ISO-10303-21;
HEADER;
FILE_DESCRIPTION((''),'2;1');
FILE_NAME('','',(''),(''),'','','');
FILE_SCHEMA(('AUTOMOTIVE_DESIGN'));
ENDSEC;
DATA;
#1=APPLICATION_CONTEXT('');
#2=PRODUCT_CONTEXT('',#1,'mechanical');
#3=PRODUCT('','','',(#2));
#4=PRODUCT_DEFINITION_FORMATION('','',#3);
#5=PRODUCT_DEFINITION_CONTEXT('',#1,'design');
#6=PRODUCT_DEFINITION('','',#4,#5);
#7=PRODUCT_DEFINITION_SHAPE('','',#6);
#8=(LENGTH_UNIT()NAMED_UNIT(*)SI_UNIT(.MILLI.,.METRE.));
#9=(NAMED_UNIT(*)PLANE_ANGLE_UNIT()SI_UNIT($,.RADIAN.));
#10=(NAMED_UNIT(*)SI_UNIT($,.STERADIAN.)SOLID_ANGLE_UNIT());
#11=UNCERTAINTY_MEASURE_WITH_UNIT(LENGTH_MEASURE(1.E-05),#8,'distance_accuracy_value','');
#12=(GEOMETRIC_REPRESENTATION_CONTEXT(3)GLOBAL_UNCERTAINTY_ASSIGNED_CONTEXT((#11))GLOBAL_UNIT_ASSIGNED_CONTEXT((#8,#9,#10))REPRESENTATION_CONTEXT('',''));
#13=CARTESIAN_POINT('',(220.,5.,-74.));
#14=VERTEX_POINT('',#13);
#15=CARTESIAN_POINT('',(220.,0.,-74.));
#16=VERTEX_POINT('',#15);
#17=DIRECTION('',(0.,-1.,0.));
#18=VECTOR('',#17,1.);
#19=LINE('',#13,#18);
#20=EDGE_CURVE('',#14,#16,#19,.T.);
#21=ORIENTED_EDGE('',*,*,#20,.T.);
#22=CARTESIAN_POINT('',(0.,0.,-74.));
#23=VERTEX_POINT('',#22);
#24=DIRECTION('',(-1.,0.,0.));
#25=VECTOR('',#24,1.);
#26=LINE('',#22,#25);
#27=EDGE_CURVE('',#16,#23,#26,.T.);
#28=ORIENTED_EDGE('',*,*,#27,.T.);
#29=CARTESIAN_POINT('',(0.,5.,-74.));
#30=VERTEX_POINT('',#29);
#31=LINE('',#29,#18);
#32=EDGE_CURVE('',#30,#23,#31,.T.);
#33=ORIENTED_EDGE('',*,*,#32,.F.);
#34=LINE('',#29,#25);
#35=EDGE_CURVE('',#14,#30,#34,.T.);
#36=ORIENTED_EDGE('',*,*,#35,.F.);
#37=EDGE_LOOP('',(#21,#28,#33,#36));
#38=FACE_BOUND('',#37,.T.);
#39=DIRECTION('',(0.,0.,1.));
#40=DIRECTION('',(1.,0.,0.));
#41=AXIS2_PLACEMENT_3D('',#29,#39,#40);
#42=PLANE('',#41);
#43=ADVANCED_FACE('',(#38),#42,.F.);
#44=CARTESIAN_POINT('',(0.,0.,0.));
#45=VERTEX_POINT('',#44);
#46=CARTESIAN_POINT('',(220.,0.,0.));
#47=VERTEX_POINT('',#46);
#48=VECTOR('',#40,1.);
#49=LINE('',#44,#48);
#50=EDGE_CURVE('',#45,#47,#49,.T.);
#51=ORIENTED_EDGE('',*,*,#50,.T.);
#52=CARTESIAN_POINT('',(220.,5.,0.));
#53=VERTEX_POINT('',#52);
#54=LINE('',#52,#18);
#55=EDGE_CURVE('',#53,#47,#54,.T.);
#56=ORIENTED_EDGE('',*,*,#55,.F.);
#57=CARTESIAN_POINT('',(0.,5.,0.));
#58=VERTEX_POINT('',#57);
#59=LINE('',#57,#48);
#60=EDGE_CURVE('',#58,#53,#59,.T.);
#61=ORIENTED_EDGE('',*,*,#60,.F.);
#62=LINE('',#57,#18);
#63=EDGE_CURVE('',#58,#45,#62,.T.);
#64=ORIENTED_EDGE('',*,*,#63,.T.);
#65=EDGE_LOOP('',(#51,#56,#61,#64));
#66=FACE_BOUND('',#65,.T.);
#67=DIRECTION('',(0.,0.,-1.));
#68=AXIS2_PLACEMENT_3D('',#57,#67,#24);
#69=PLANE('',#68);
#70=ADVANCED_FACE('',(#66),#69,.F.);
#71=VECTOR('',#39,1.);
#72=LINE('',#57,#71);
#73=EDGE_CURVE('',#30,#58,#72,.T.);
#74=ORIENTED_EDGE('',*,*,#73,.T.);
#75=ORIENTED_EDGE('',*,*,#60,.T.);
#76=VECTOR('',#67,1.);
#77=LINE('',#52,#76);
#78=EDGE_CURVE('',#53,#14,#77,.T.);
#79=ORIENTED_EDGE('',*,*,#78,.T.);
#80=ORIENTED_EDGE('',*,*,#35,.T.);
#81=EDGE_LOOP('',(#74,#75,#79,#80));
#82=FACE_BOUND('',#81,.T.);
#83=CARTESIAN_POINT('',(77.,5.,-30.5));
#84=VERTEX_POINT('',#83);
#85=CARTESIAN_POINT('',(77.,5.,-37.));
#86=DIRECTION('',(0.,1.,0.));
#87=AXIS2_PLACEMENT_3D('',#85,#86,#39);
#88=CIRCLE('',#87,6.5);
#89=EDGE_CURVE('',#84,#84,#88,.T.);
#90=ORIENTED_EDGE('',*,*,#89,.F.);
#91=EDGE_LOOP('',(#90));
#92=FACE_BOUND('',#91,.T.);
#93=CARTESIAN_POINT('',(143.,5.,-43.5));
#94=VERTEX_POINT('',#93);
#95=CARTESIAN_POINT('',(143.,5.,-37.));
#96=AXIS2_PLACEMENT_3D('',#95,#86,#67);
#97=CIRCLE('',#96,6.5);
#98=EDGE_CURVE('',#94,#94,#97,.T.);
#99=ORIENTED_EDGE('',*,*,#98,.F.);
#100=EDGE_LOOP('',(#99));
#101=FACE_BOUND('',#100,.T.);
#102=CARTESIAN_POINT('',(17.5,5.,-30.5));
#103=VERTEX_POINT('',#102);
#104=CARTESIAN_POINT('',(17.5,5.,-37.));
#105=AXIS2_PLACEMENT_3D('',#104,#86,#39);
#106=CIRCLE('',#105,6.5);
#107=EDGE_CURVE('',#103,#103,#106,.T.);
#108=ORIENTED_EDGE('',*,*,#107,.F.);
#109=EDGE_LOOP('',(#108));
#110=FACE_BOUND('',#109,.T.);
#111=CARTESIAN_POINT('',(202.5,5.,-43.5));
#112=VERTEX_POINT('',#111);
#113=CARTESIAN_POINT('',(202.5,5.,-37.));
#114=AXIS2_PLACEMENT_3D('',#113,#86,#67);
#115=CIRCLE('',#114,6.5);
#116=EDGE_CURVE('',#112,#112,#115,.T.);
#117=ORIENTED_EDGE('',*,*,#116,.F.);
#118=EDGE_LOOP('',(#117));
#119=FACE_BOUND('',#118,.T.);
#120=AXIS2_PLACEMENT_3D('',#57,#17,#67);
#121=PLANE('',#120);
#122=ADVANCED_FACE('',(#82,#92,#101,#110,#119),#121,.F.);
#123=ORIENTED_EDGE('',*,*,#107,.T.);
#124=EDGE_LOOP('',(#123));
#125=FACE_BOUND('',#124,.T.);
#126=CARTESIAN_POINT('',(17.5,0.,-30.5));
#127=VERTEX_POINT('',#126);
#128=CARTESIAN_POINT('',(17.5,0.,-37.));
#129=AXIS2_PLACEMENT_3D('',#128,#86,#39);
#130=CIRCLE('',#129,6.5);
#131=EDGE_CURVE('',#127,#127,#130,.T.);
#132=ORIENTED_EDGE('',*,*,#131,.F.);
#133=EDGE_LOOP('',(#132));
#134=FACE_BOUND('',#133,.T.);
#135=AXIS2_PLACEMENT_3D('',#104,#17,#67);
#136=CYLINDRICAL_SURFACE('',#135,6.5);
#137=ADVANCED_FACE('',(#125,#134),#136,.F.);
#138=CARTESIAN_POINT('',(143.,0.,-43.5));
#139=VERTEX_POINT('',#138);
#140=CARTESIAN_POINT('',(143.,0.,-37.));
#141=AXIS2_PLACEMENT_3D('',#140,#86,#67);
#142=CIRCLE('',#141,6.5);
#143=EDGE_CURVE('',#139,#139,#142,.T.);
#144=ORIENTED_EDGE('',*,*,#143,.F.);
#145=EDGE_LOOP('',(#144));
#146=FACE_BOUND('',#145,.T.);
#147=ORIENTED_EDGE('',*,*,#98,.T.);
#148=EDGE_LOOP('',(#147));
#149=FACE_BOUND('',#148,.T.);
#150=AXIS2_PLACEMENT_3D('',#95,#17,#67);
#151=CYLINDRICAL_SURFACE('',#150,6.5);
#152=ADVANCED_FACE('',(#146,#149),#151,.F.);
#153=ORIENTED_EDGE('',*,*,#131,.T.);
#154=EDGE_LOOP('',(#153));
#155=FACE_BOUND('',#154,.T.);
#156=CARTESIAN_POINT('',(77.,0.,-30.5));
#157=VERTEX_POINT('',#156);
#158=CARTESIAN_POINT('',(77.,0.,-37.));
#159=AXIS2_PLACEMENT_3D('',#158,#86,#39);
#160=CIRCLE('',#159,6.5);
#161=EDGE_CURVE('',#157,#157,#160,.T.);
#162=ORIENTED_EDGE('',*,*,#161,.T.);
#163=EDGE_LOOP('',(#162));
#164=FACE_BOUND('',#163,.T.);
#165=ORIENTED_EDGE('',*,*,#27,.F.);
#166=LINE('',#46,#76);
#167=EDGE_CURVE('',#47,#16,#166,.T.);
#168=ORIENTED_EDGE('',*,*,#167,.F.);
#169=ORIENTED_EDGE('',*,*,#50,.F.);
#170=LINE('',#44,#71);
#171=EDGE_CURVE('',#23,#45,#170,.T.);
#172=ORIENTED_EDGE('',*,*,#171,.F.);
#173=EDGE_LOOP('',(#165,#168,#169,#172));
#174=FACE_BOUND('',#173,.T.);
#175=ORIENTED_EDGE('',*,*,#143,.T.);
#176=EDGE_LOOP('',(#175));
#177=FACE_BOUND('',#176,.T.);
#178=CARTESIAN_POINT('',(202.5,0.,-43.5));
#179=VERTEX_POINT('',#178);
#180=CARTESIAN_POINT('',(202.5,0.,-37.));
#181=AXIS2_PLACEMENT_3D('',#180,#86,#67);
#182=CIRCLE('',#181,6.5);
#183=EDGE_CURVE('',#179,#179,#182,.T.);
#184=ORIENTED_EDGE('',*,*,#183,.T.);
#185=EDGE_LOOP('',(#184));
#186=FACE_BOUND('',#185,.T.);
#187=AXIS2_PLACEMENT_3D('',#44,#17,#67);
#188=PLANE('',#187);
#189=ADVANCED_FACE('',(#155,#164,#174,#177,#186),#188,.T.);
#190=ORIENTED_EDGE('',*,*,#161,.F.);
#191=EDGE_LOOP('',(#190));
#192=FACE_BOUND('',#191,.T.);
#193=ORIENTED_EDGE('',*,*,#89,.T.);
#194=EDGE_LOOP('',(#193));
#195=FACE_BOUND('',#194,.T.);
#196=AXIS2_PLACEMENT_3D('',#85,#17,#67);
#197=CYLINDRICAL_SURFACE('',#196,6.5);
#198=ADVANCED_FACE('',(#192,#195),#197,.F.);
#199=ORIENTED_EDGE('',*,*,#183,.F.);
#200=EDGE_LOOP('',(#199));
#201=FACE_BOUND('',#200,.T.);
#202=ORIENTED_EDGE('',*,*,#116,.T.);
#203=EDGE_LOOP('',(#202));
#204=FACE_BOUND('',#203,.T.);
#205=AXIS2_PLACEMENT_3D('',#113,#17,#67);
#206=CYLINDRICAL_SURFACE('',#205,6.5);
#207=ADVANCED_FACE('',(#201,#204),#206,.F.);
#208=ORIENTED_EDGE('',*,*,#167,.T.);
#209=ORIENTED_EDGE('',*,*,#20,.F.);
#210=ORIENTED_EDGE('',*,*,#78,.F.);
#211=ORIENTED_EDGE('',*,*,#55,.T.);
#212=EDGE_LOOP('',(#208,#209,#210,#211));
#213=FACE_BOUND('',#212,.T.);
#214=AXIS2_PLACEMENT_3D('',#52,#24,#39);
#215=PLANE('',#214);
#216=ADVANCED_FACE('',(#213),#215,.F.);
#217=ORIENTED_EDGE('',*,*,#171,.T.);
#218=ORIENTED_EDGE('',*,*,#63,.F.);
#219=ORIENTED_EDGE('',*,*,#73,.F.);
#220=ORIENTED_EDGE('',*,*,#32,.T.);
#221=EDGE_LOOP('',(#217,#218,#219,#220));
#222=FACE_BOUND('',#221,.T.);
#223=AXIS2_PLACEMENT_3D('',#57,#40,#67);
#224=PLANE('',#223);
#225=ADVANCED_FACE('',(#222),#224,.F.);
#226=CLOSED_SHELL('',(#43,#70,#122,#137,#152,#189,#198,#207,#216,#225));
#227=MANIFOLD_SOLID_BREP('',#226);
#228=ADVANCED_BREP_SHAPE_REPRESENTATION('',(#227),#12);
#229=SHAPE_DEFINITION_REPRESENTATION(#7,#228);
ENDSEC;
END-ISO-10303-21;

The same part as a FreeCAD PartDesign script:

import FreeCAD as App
import Part
import Sketcher

V = App.Vector

doc = App.newDocument("Part")
body = doc.addObject("PartDesign::Body", "Body")

# Sketch on XZ plane
sketch1 = doc.addObject("Sketcher::SketchObject", "Sketch")
body.addObject(sketch1)
sketch1.AttachmentSupport = (doc.XZ_Plane, [""])
sketch1.MapMode = "FlatFace"
sketch1.addGeometry(Part.LineSegment(V(0, -74, 0), V(0, 0, 0)), False)
sketch1.addGeometry(Part.LineSegment(V(0, 0, 0), V(220, 0, 0)), False)
sketch1.addGeometry(Part.LineSegment(V(220, 0, 0), V(220, -74, 0)), False)
sketch1.addGeometry(Part.LineSegment(V(220, -74, 0), V(0, -74, 0)), False)
sketch1.addGeometry(Part.Circle(V(18, -37, 0), V(0, 0, 1), 6), False)
sketch1.addGeometry(Part.Circle(V(77, -37, 0), V(0, 0, 1), 6), False)
sketch1.addGeometry(Part.Circle(V(143, -37, 0), V(0, 0, 1), 6), False)
sketch1.addGeometry(Part.Circle(V(202, -37, 0), V(0, 0, 1), 6), False)
sketch1.addConstraint(Sketcher.Constraint("Coincident", 0, 2, 1, 1))
sketch1.addConstraint(Sketcher.Constraint("Coincident", 1, 2, 2, 1))
sketch1.addConstraint(Sketcher.Constraint("Coincident", 2, 2, 3, 1))
sketch1.addConstraint(Sketcher.Constraint("Coincident", 3, 2, 0, 1))
sketch1.addConstraint(Sketcher.Constraint("Vertical", 0))
sketch1.addConstraint(Sketcher.Constraint("Horizontal", 1))
sketch1.addConstraint(Sketcher.Constraint("Vertical", 2))
sketch1.addConstraint(Sketcher.Constraint("Horizontal", 3))
sketch1.addConstraint(Sketcher.Constraint("Coincident", 0, 2, -1, 1))
sketch1.addConstraint(Sketcher.Constraint("Equal", 4, 5))
sketch1.addConstraint(Sketcher.Constraint("Equal", 5, 6))
sketch1.addConstraint(Sketcher.Constraint("Equal", 6, 7))
sketch1.addConstraint(Sketcher.Constraint("Horizontal", 4, 3, 5, 3))
sketch1.addConstraint(Sketcher.Constraint("Horizontal", 5, 3, 6, 3))
sketch1.addConstraint(Sketcher.Constraint("Horizontal", 6, 3, 7, 3))
sketch1.addConstraint(Sketcher.Constraint("Diameter", 4, 13.0))
sketch1.addConstraint(Sketcher.Constraint("DistanceX", 1, 1, 1, 2, 220.0))
sketch1.addConstraint(Sketcher.Constraint("DistanceY", 0, 1, 0, 2, 74.0))
sketch1.addConstraint(Sketcher.Constraint("DistanceY", 4, 3, -1, 1, 37.0))
sketch1.addConstraint(Sketcher.Constraint("DistanceX", -1, 1, 5, 3, 77.0))
sketch1.addConstraint(Sketcher.Constraint("DistanceX", -1, 1, 6, 3, 143.0))
sketch1.addConstraint(Sketcher.Constraint("DistanceX", 4, 3, 7, 3, 185.0))
sketch1.addConstraint(Sketcher.Constraint("DistanceX", -1, 1, 4, 3, 17.5))
pad1 = doc.addObject("PartDesign::Pad", "Pad")
body.addObject(pad1)
pad1.Profile = sketch1
pad1.Length = 5
pad1.Reversed = True

doc.recompute()
